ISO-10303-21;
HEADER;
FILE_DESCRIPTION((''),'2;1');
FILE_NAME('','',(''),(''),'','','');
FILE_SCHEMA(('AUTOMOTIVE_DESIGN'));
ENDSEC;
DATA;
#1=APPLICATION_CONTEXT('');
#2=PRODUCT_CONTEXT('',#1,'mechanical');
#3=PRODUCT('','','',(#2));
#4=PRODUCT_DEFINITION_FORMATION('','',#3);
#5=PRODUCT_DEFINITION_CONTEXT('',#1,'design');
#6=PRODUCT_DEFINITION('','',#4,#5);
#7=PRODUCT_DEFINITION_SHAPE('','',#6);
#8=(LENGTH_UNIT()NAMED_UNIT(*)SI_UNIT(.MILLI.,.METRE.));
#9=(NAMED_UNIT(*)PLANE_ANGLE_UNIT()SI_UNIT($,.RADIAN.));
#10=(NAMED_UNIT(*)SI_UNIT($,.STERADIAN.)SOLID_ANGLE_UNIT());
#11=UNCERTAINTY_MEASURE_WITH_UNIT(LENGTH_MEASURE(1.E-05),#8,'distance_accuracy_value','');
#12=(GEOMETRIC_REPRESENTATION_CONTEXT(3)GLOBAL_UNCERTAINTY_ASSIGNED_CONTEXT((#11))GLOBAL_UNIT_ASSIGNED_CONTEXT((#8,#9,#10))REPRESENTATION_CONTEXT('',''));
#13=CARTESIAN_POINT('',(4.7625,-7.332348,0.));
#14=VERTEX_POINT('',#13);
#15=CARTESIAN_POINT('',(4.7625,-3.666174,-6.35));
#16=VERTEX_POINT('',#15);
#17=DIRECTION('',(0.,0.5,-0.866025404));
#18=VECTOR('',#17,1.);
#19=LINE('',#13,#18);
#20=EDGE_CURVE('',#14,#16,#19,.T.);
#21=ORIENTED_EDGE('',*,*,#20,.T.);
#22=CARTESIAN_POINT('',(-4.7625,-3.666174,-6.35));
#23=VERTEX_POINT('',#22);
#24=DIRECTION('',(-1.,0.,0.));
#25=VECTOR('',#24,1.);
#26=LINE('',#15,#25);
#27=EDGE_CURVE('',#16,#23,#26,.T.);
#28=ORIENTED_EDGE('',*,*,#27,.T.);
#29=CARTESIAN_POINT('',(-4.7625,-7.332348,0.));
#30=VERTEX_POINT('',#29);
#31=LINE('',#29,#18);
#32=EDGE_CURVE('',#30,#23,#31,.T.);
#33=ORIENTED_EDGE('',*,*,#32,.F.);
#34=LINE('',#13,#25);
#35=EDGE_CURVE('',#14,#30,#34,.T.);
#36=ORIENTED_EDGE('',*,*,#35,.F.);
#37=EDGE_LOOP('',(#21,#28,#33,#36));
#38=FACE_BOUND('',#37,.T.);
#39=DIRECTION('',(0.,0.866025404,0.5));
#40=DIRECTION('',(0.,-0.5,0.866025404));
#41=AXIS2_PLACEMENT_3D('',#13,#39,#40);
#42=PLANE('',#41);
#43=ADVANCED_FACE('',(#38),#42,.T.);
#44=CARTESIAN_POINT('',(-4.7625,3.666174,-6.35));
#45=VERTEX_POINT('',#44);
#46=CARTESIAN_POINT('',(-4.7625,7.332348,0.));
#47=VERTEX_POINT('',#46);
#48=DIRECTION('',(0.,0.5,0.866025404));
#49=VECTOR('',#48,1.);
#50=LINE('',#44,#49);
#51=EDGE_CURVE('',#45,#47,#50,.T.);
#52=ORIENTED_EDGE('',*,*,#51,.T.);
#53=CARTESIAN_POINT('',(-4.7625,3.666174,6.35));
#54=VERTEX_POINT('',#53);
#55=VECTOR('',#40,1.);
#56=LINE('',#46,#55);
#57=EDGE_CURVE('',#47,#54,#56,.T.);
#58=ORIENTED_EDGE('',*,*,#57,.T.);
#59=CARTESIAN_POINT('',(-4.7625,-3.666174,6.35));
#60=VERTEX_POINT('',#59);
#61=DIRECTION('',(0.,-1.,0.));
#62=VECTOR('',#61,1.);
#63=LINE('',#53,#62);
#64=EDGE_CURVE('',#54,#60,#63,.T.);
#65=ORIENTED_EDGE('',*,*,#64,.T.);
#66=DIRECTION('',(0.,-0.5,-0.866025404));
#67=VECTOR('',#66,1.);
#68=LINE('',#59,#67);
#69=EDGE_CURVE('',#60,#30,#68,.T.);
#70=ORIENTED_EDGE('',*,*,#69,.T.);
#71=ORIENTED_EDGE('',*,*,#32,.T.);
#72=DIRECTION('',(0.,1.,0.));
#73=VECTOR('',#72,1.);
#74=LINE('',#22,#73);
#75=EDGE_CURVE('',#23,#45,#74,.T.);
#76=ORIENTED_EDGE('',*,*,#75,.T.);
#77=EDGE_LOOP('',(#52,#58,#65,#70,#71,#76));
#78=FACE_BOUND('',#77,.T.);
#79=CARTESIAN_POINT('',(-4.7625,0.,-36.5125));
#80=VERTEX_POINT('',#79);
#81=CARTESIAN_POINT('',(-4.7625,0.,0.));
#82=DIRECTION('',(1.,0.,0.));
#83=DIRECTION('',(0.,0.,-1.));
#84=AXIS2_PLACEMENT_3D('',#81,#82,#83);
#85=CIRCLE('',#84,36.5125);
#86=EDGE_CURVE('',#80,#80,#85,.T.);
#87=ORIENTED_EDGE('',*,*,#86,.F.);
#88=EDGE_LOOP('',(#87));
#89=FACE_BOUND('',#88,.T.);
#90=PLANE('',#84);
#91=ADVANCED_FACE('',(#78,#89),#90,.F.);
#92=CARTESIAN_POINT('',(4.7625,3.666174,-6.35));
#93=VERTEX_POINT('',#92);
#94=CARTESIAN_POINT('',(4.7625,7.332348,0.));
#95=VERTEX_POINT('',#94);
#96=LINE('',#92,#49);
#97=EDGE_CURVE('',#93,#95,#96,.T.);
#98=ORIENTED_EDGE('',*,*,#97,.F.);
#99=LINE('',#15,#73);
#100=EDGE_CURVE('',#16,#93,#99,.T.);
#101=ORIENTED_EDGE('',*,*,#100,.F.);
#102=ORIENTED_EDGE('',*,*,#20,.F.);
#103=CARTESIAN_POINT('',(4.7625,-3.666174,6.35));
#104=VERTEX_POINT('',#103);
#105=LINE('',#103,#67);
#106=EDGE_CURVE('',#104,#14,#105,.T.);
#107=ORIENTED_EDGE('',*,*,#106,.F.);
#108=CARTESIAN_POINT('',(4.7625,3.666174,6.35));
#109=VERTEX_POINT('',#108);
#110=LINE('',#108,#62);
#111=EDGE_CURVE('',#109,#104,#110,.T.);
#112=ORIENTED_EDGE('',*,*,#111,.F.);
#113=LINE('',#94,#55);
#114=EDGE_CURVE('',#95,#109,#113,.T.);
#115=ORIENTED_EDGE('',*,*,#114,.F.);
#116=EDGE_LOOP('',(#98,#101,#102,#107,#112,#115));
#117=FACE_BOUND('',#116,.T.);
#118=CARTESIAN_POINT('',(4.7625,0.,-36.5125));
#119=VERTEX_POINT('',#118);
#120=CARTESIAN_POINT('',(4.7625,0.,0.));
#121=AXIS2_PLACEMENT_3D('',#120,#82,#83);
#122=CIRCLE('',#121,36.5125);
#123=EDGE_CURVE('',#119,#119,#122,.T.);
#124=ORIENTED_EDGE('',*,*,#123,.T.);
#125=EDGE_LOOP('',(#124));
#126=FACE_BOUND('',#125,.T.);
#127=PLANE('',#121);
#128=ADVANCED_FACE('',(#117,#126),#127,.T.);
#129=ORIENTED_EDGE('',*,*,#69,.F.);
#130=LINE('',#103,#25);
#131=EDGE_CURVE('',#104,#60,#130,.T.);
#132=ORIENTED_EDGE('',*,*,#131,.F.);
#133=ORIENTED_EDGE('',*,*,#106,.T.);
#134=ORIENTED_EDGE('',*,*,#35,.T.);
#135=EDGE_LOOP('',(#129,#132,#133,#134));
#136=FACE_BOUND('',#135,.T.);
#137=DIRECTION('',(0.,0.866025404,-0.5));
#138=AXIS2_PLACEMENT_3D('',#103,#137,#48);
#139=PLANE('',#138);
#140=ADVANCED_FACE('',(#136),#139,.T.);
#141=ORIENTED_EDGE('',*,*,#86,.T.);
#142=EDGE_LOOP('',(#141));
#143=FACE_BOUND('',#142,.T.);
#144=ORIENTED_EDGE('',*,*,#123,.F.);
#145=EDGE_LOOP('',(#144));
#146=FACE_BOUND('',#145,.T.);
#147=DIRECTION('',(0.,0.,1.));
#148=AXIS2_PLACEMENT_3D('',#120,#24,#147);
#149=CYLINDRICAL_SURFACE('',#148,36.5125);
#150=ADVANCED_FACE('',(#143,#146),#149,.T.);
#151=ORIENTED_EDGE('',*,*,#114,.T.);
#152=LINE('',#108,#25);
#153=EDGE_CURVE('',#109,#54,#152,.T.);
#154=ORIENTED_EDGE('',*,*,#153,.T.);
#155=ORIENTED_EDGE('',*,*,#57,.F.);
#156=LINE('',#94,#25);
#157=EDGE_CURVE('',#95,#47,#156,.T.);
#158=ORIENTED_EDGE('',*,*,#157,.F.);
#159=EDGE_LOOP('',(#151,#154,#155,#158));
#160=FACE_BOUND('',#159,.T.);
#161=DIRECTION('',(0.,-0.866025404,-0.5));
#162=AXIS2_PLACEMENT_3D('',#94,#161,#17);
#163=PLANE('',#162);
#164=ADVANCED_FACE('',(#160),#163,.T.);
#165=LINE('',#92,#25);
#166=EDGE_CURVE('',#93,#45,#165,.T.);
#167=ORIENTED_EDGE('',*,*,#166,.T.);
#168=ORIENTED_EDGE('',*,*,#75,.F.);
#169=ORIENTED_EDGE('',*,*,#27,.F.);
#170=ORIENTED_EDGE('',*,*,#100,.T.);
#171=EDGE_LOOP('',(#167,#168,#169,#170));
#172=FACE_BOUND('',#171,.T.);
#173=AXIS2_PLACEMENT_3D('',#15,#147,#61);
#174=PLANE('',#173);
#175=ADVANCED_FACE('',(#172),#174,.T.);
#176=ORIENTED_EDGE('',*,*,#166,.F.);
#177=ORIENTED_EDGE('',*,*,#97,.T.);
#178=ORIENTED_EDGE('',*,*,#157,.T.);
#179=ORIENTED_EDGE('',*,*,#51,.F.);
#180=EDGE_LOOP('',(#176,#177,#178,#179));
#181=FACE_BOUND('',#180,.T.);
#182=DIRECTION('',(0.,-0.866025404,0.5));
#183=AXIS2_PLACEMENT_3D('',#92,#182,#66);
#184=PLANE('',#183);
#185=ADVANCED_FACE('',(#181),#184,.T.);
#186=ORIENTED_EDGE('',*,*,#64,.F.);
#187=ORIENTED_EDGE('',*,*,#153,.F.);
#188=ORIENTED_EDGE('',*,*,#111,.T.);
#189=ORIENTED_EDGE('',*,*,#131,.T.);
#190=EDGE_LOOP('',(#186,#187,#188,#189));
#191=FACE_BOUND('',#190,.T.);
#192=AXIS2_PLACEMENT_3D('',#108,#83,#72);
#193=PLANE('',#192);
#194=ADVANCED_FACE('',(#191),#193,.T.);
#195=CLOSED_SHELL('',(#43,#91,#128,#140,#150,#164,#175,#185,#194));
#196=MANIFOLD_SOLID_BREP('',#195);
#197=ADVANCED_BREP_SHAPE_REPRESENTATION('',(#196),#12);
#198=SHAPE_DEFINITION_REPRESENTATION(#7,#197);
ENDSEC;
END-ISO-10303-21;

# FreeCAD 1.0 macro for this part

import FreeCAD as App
import Part
import Sketcher
Q = App.Units.Quantity

doc = App.newDocument("Part")
body = doc.addObject("PartDesign::Body", "Body")

sketch1 = body.newObject("Sketcher::SketchObject", "Sketch")
sketch1.AttachmentSupport = (doc.getObject("YZ_Plane"), [""])
sketch1.MapMode = "FlatFace"
sketch1.addGeometry([
    Part.Circle(App.Vector(0, 0, 0), App.Vector(0, 0, 1), 37),
    Part.LineSegment(App.Vector(4, 6, 0), App.Vector(7, 0, 0)),
    Part.LineSegment(App.Vector(7, 0, 0), App.Vector(4, -6, 0)),
    Part.LineSegment(App.Vector(4, -6, 0), App.Vector(-4, -6, 0)),
    Part.LineSegment(App.Vector(-4, -6, 0), App.Vector(-7, 0, 0)),
    Part.LineSegment(App.Vector(-7, 0, 0), App.Vector(-4, 6, 0)),
    Part.LineSegment(App.Vector(-4, 6, 0), App.Vector(4, 6, 0)),
], False)
sketch1.addConstraint([
    Sketcher.Constraint("Coincident", 1, 2, 2, 1),
    Sketcher.Constraint("Coincident", 2, 2, 3, 1),
    Sketcher.Constraint("Coincident", 3, 2, 4, 1),
    Sketcher.Constraint("Coincident", 4, 2, 5, 1),
    Sketcher.Constraint("Coincident", 5, 2, 6, 1),
    Sketcher.Constraint("Coincident", 6, 2, 1, 1),
    Sketcher.Constraint("Horizontal", 3),
    Sketcher.Constraint("Horizontal", 6),
    Sketcher.Constraint("Coincident", 0, 3, -1, 1),
    Sketcher.Constraint("Symmetric", 1, 2, 4, 2, -1, 1),
    Sketcher.Constraint("Symmetric", 2, 2, 5, 2, -1, 1),
    Sketcher.Constraint("PointOnObject", 1, 2, -1),
    Sketcher.Constraint("Parallel", 1, 4),
    Sketcher.Constraint("Vertical", 3, 2, 5, 2),
    Sketcher.Constraint("Diameter", 0, Q("2.875 in")),
    Sketcher.Constraint("Angle", 1, Q("-60 deg")),
    Sketcher.Constraint("DistanceY", 3, 2, 5, 2, Q("0.5 in")),
    Sketcher.Constraint("DistanceX", 3, 2, 3, 1, Q("7.332348 mm")),
])
pad1 = body.newObject("PartDesign::Pad", "Pad")
pad1.Profile = sketch1
pad1.Length = Q("0.375 in")
pad1.Midplane = True

doc.recompute()
